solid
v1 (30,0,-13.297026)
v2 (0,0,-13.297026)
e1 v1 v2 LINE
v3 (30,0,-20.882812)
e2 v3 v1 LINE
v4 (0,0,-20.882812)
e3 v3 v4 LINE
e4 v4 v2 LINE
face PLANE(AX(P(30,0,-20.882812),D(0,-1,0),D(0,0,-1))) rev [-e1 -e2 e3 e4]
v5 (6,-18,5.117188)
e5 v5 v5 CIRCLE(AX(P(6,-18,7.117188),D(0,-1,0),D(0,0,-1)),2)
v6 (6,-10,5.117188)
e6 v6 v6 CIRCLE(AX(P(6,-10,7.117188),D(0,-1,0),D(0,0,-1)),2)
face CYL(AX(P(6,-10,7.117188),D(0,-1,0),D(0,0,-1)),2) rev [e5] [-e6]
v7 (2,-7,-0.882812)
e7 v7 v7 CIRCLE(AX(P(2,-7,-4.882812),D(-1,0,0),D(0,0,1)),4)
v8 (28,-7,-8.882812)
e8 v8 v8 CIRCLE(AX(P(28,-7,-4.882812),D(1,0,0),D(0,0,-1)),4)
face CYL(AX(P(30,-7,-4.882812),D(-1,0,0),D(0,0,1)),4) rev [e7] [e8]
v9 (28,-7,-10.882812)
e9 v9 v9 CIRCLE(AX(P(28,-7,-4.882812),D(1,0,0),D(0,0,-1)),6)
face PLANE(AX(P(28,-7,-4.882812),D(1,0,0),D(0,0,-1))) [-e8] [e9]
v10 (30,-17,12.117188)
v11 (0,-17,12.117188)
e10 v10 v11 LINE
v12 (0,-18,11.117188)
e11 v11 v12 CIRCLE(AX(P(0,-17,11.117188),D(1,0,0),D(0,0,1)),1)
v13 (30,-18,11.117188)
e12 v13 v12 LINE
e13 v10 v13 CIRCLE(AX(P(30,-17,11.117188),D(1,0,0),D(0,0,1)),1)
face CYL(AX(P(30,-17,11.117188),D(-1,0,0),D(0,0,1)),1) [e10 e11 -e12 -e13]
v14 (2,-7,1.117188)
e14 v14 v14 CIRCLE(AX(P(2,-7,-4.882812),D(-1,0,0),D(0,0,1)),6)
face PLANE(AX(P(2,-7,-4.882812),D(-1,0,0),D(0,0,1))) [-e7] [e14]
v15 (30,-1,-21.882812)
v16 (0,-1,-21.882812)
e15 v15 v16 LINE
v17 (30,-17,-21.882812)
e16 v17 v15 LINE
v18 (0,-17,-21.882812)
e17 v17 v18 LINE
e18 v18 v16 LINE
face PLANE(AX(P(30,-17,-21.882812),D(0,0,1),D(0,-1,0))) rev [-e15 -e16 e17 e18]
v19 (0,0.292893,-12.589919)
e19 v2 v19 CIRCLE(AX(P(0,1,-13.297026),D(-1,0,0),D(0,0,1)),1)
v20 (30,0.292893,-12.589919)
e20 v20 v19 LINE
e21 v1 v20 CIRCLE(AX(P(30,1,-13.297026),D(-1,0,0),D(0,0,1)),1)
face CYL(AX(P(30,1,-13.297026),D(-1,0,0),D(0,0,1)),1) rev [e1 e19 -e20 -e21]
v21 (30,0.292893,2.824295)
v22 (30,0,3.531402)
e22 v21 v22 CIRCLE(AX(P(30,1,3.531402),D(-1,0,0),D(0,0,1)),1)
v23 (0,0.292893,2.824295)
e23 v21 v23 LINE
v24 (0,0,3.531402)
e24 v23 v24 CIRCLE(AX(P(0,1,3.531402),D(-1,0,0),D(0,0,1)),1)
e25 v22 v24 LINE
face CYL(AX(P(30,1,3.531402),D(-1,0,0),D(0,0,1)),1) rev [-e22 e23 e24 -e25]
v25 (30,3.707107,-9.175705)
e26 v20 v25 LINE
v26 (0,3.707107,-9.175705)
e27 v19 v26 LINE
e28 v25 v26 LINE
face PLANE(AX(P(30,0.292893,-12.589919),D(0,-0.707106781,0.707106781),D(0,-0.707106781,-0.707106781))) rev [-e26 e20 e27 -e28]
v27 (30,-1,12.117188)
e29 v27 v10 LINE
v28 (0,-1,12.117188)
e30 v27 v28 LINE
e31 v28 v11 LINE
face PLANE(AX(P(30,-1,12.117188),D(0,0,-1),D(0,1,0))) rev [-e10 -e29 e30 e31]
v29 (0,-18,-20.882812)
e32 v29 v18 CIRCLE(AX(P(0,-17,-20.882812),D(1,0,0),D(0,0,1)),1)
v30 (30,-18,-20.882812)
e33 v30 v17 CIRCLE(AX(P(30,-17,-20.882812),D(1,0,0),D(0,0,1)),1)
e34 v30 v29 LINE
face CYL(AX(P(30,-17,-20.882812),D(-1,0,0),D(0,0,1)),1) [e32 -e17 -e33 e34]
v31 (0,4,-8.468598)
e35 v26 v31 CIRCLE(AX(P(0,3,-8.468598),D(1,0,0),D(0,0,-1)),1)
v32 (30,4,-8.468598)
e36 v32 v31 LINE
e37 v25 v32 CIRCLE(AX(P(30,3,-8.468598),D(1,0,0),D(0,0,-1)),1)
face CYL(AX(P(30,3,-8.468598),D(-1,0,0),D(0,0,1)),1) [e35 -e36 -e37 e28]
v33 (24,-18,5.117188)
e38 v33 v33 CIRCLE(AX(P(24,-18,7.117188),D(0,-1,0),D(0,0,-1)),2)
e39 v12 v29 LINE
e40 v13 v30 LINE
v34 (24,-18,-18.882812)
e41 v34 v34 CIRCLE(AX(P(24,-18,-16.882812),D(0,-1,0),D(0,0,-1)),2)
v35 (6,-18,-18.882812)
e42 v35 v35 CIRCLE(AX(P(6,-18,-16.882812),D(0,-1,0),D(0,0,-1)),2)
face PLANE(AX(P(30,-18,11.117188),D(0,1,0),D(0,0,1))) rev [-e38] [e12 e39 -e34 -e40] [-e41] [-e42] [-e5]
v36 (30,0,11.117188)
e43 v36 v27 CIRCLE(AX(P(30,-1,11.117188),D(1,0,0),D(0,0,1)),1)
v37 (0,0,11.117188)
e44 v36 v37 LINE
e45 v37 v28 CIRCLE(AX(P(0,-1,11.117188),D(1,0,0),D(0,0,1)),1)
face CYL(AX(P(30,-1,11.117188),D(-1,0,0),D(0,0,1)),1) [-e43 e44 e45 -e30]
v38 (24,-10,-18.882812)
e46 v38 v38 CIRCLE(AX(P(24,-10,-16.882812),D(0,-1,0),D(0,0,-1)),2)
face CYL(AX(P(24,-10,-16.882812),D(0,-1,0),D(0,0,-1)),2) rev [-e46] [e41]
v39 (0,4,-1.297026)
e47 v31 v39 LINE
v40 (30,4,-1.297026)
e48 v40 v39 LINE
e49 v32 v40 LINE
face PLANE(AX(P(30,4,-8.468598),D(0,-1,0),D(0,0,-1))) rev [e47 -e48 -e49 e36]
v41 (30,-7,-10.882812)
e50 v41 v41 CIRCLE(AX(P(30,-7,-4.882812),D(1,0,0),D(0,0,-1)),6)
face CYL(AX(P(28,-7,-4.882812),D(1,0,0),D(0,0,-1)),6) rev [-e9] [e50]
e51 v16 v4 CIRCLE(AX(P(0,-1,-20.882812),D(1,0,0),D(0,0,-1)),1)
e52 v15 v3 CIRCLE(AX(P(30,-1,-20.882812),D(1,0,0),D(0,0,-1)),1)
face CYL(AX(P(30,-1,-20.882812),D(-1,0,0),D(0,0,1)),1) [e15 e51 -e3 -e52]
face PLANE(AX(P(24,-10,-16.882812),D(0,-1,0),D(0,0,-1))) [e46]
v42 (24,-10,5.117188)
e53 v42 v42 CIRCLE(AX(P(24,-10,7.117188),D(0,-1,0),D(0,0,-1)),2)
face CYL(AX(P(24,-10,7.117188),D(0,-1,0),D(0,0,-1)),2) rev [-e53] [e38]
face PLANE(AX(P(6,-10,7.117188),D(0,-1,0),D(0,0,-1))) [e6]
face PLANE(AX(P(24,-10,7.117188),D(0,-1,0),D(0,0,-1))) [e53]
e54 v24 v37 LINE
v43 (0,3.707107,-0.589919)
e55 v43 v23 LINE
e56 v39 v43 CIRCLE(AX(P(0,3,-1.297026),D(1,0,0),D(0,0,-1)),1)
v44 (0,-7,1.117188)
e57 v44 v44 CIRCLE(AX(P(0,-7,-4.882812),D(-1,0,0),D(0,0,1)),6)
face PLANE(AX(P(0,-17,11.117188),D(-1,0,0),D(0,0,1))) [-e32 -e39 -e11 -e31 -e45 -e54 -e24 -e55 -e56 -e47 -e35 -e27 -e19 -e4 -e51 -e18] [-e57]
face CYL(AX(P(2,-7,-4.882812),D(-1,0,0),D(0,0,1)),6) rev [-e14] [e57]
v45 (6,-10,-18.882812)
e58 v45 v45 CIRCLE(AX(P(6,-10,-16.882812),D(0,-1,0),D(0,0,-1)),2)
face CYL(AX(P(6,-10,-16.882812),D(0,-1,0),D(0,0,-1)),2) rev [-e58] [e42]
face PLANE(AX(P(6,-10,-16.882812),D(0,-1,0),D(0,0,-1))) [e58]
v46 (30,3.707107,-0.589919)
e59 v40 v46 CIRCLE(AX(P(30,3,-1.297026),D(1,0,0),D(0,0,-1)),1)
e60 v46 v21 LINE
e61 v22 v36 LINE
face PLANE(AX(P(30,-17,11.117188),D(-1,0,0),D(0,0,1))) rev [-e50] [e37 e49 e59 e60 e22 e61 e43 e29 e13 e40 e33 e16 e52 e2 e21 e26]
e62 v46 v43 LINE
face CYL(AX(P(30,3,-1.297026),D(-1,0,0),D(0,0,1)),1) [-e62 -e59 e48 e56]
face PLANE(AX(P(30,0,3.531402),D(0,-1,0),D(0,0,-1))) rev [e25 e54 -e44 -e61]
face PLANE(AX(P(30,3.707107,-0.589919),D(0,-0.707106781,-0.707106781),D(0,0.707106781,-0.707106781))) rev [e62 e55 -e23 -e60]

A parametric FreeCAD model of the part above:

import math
import FreeCAD as App
import Part
import Sketcher
Q = App.Units.Quantity

doc = App.newDocument("Part")
body = doc.addObject("PartDesign::Body", "Body")

# Sketch on YZ plane
sketch1 = body.newObject("Sketcher::SketchObject", "Sketch")
sketch1.AttachmentSupport = (doc.getObject("YZ_Plane"), [""])
sketch1.MapMode = "FlatFace"
sketch1.addGeometry([
    Part.LineSegment(App.Vector(-1, 12.117188, 0), App.Vector(-17, 12.117188, 0)),  # 0
    Part.ArcOfCircle(Part.Circle(App.Vector(-17, 11.117188, 0), App.Vector(0, 0, 1), 1), math.radians(90), math.radians(180)),  # 1
    Part.LineSegment(App.Vector(-18, 11.117188, 0), App.Vector(-18, -20.882812, 0)),  # 2
    Part.ArcOfCircle(Part.Circle(App.Vector(-17, -20.882812, 0), App.Vector(0, 0, 1), 1), math.radians(-180), math.radians(-90)),  # 3
    Part.LineSegment(App.Vector(-17, -21.882812, 0), App.Vector(-1, -21.882812, 0)),  # 4
    Part.ArcOfCircle(Part.Circle(App.Vector(-1, -20.882812, 0), App.Vector(0, 0, 1), 1), math.radians(-90), math.radians(0)),  # 5
    Part.LineSegment(App.Vector(0, -20.882812, 0), App.Vector(0, -13.297026, 0)),  # 6
    Part.ArcOfCircle(Part.Circle(App.Vector(1, -13.297026, 0), App.Vector(0, 0, 1), 1), math.radians(135), math.radians(180)),  # 7
    Part.LineSegment(App.Vector(0.292893, -12.589919, 0), App.Vector(3.707107, -9.175705, 0)),  # 8
    Part.ArcOfCircle(Part.Circle(App.Vector(3, -8.468598, 0), App.Vector(0, 0, 1), 1), math.radians(-45), math.radians(0)),  # 9
    Part.LineSegment(App.Vector(4, -8.468598, 0), App.Vector(4, -1.297026, 0)),  # 10
    Part.ArcOfCircle(Part.Circle(App.Vector(3, -1.297026, 0), App.Vector(0, 0, 1), 1), math.radians(0), math.radians(45)),  # 11
    Part.LineSegment(App.Vector(3.707107, -0.589919, 0), App.Vector(0.292893, 2.824295, 0)),  # 12
    Part.ArcOfCircle(Part.Circle(App.Vector(1, 3.531402, 0), App.Vector(0, 0, 1), 1), math.radians(180), math.radians(225)),  # 13
    Part.LineSegment(App.Vector(0, 3.531402, 0), App.Vector(0, 11.117188, 0)),  # 14
    Part.ArcOfCircle(Part.Circle(App.Vector(-1, 11.117188, 0), App.Vector(0, 0, 1), 1), math.radians(0), math.radians(90)),  # 15
    Part.Circle(App.Vector(-7, -4.882812, 0), App.Vector(0, 0, 1), 4),  # 16
], False)
sketch1.addConstraint([
    Sketcher.Constraint("Tangent", 0, 2, 1, 1),
    Sketcher.Constraint("Tangent", 1, 2, 2, 1),
    Sketcher.Constraint("Tangent", 2, 2, 3, 1),
    Sketcher.Constraint("Tangent", 3, 2, 4, 1),
    Sketcher.Constraint("Tangent", 4, 2, 5, 1),
    Sketcher.Constraint("Tangent", 5, 2, 6, 1),
    Sketcher.Constraint("Tangent", 6, 2, 7, 2),
    Sketcher.Constraint("Tangent", 7, 1, 8, 1),
    Sketcher.Constraint("Tangent", 8, 2, 9, 1),
    Sketcher.Constraint("Tangent", 9, 2, 10, 1),
    Sketcher.Constraint("Tangent", 10, 2, 11, 1),
    Sketcher.Constraint("Tangent", 11, 2, 12, 1),
    Sketcher.Constraint("Tangent", 12, 2, 13, 2),
    Sketcher.Constraint("Tangent", 13, 1, 14, 1),
    Sketcher.Constraint("Tangent", 14, 2, 15, 1),
    Sketcher.Constraint("Tangent", 15, 2, 0, 1),
    Sketcher.Constraint("Horizontal", 0),
    Sketcher.Constraint("Vertical", 2),
    Sketcher.Constraint("Horizontal", 4),
    Sketcher.Constraint("Vertical", 6),
    Sketcher.Constraint("Vertical", 10),
    Sketcher.Constraint("Vertical", 14),
    Sketcher.Constraint("Equal", 1, 3),
    Sketcher.Constraint("Equal", 3, 5),
    Sketcher.Constraint("Equal", 5, 7),
    Sketcher.Constraint("Equal", 7, 9),
    Sketcher.Constraint("Equal", 9, 11),
    Sketcher.Constraint("Equal", 11, 13),
    Sketcher.Constraint("Equal", 13, 15),
    Sketcher.Constraint("PointOnObject", 5, 2, -2),
    Sketcher.Constraint("PointOnObject", 13, 1, -2),
    Sketcher.Constraint("Perpendicular", 8, 12),
    Sketcher.Constraint("Vertical", 8, 2, 11, 2),
    Sketcher.Constraint("Equal", 6, 14),
    Sketcher.Constraint("Diameter", 16, Q("8 mm")),
    Sketcher.Constraint("Radius", 1, Q("1 mm")),
    Sketcher.Constraint("DistanceX", 0, 2, 0, 1, Q("16 mm")),
    Sketcher.Constraint("DistanceY", 2, 2, 2, 1, Q("32 mm")),
    Sketcher.Constraint("DistanceX", -1, 1, 9, 3, Q("3 mm")),
    Sketcher.Constraint("DistanceX", 16, 3, -1, 1, Q("7 mm")),
    Sketcher.Constraint("DistanceY", 7, 3, 11, 3, Q("12 mm")),
    Sketcher.Constraint("DistanceY", 5, 3, 16, 3, Q("16 mm")),
    Sketcher.Constraint("DistanceY", 9, 3, -1, 1, Q("8.468598 mm")),
])
pad1 = body.newObject("PartDesign::Pad", "Pad")
pad1.Profile = sketch1
pad1.Length = 30

# Sketch on XZ plane
sketch2 = body.newObject("Sketcher::SketchObject", "Sketch001")
sketch2.AttachmentSupport = (doc.getObject("XZ_Plane"), [""])
sketch2.MapMode = "FlatFace"
sketch2.AttachmentOffset = App.Placement(App.Vector(0, 0, 18), App.Rotation())
sketch2.addGeometry([
    Part.Circle(App.Vector(24, -16.882812, 0), App.Vector(0, 0, 1), 2),
    Part.Circle(App.Vector(6, -16.882812, 0), App.Vector(0, 0, 1), 2),
    Part.Circle(App.Vector(6, 7.117188, 0), App.Vector(0, 0, 1), 2),
    Part.Circle(App.Vector(24, 7.117188, 0), App.Vector(0, 0, 1), 2),
], False)
sketch2.addConstraint([
    Sketcher.Constraint("Equal", 0, 1),
    Sketcher.Constraint("Equal", 1, 2),
    Sketcher.Constraint("Equal", 2, 3),
    Sketcher.Constraint("Horizontal", 0, 3, 1, 3),
    Sketcher.Constraint("Horizontal", 2, 3, 3, 3),
    Sketcher.Constraint("Vertical", 1, 3, 2, 3),
    Sketcher.Constraint("Vertical", 0, 3, 3, 3),
    Sketcher.Constraint("Diameter", 0, Q("4 mm")),
    Sketcher.Constraint("DistanceX", -1, 1, 0, 3, Q("24 mm")),
    Sketcher.Constraint("DistanceX", -1, 1, 1, 3, Q("6 mm")),
    Sketcher.Constraint("DistanceY", 1, 3, 2, 3, Q("24 mm")),
    Sketcher.Constraint("DistanceY", 0, 3, -1, 1, Q("16.882812 mm")),
])
pocket1 = body.newObject("PartDesign::Pocket", "Pocket")
pocket1.Profile = sketch2
pocket1.Length = 8

# Sketch on YZ plane
sketch3 = body.newObject("Sketcher::SketchObject", "Sketch002")
sketch3.AttachmentSupport = (doc.getObject("YZ_Plane"), [""])
sketch3.MapMode = "FlatFace"
sketch3.addGeometry(Part.Circle(App.Vector(-7, -4.882812, 0), App.Vector(0, 0, 1), 6), False)
sketch3.addConstraint([
    Sketcher.Constraint("Diameter", 0, Q("12 mm")),
    Sketcher.Constraint("DistanceX", 0, 3, -1, 1, Q("7 mm")),
    Sketcher.Constraint("DistanceY", 0, 3, -1, 1, Q("4.882812 mm")),
])
pocket2 = body.newObject("PartDesign::Pocket", "Pocket001")
pocket2.Profile = sketch3
pocket2.Length = 2
pocket2.Reversed = True

# Sketch on YZ plane
sketch4 = body.newObject("Sketcher::SketchObject", "Sketch003")
sketch4.AttachmentSupport = (doc.getObject("YZ_Plane"), [""])
sketch4.MapMode = "FlatFace"
sketch4.AttachmentOffset = App.Placement(App.Vector(0, 0, 28), App.Rotation())
sketch4.addGeometry(Part.Circle(App.Vector(-7, -4.882812, 0), App.Vector(0, 0, 1), 6), False)
sketch4.addConstraint([
    Sketcher.Constraint("Diameter", 0, Q("12 mm")),
    Sketcher.Constraint("DistanceX", 0, 3, -1, 1, Q("7 mm")),
    Sketcher.Constraint("DistanceY", 0, 3, -1, 1, Q("4.882812 mm")),
])
pocket3 = body.newObject("PartDesign::Pocket", "Pocket002")
pocket3.Profile = sketch4
pocket3.Length = 2
pocket3.Reversed = True

doc.recompute()
